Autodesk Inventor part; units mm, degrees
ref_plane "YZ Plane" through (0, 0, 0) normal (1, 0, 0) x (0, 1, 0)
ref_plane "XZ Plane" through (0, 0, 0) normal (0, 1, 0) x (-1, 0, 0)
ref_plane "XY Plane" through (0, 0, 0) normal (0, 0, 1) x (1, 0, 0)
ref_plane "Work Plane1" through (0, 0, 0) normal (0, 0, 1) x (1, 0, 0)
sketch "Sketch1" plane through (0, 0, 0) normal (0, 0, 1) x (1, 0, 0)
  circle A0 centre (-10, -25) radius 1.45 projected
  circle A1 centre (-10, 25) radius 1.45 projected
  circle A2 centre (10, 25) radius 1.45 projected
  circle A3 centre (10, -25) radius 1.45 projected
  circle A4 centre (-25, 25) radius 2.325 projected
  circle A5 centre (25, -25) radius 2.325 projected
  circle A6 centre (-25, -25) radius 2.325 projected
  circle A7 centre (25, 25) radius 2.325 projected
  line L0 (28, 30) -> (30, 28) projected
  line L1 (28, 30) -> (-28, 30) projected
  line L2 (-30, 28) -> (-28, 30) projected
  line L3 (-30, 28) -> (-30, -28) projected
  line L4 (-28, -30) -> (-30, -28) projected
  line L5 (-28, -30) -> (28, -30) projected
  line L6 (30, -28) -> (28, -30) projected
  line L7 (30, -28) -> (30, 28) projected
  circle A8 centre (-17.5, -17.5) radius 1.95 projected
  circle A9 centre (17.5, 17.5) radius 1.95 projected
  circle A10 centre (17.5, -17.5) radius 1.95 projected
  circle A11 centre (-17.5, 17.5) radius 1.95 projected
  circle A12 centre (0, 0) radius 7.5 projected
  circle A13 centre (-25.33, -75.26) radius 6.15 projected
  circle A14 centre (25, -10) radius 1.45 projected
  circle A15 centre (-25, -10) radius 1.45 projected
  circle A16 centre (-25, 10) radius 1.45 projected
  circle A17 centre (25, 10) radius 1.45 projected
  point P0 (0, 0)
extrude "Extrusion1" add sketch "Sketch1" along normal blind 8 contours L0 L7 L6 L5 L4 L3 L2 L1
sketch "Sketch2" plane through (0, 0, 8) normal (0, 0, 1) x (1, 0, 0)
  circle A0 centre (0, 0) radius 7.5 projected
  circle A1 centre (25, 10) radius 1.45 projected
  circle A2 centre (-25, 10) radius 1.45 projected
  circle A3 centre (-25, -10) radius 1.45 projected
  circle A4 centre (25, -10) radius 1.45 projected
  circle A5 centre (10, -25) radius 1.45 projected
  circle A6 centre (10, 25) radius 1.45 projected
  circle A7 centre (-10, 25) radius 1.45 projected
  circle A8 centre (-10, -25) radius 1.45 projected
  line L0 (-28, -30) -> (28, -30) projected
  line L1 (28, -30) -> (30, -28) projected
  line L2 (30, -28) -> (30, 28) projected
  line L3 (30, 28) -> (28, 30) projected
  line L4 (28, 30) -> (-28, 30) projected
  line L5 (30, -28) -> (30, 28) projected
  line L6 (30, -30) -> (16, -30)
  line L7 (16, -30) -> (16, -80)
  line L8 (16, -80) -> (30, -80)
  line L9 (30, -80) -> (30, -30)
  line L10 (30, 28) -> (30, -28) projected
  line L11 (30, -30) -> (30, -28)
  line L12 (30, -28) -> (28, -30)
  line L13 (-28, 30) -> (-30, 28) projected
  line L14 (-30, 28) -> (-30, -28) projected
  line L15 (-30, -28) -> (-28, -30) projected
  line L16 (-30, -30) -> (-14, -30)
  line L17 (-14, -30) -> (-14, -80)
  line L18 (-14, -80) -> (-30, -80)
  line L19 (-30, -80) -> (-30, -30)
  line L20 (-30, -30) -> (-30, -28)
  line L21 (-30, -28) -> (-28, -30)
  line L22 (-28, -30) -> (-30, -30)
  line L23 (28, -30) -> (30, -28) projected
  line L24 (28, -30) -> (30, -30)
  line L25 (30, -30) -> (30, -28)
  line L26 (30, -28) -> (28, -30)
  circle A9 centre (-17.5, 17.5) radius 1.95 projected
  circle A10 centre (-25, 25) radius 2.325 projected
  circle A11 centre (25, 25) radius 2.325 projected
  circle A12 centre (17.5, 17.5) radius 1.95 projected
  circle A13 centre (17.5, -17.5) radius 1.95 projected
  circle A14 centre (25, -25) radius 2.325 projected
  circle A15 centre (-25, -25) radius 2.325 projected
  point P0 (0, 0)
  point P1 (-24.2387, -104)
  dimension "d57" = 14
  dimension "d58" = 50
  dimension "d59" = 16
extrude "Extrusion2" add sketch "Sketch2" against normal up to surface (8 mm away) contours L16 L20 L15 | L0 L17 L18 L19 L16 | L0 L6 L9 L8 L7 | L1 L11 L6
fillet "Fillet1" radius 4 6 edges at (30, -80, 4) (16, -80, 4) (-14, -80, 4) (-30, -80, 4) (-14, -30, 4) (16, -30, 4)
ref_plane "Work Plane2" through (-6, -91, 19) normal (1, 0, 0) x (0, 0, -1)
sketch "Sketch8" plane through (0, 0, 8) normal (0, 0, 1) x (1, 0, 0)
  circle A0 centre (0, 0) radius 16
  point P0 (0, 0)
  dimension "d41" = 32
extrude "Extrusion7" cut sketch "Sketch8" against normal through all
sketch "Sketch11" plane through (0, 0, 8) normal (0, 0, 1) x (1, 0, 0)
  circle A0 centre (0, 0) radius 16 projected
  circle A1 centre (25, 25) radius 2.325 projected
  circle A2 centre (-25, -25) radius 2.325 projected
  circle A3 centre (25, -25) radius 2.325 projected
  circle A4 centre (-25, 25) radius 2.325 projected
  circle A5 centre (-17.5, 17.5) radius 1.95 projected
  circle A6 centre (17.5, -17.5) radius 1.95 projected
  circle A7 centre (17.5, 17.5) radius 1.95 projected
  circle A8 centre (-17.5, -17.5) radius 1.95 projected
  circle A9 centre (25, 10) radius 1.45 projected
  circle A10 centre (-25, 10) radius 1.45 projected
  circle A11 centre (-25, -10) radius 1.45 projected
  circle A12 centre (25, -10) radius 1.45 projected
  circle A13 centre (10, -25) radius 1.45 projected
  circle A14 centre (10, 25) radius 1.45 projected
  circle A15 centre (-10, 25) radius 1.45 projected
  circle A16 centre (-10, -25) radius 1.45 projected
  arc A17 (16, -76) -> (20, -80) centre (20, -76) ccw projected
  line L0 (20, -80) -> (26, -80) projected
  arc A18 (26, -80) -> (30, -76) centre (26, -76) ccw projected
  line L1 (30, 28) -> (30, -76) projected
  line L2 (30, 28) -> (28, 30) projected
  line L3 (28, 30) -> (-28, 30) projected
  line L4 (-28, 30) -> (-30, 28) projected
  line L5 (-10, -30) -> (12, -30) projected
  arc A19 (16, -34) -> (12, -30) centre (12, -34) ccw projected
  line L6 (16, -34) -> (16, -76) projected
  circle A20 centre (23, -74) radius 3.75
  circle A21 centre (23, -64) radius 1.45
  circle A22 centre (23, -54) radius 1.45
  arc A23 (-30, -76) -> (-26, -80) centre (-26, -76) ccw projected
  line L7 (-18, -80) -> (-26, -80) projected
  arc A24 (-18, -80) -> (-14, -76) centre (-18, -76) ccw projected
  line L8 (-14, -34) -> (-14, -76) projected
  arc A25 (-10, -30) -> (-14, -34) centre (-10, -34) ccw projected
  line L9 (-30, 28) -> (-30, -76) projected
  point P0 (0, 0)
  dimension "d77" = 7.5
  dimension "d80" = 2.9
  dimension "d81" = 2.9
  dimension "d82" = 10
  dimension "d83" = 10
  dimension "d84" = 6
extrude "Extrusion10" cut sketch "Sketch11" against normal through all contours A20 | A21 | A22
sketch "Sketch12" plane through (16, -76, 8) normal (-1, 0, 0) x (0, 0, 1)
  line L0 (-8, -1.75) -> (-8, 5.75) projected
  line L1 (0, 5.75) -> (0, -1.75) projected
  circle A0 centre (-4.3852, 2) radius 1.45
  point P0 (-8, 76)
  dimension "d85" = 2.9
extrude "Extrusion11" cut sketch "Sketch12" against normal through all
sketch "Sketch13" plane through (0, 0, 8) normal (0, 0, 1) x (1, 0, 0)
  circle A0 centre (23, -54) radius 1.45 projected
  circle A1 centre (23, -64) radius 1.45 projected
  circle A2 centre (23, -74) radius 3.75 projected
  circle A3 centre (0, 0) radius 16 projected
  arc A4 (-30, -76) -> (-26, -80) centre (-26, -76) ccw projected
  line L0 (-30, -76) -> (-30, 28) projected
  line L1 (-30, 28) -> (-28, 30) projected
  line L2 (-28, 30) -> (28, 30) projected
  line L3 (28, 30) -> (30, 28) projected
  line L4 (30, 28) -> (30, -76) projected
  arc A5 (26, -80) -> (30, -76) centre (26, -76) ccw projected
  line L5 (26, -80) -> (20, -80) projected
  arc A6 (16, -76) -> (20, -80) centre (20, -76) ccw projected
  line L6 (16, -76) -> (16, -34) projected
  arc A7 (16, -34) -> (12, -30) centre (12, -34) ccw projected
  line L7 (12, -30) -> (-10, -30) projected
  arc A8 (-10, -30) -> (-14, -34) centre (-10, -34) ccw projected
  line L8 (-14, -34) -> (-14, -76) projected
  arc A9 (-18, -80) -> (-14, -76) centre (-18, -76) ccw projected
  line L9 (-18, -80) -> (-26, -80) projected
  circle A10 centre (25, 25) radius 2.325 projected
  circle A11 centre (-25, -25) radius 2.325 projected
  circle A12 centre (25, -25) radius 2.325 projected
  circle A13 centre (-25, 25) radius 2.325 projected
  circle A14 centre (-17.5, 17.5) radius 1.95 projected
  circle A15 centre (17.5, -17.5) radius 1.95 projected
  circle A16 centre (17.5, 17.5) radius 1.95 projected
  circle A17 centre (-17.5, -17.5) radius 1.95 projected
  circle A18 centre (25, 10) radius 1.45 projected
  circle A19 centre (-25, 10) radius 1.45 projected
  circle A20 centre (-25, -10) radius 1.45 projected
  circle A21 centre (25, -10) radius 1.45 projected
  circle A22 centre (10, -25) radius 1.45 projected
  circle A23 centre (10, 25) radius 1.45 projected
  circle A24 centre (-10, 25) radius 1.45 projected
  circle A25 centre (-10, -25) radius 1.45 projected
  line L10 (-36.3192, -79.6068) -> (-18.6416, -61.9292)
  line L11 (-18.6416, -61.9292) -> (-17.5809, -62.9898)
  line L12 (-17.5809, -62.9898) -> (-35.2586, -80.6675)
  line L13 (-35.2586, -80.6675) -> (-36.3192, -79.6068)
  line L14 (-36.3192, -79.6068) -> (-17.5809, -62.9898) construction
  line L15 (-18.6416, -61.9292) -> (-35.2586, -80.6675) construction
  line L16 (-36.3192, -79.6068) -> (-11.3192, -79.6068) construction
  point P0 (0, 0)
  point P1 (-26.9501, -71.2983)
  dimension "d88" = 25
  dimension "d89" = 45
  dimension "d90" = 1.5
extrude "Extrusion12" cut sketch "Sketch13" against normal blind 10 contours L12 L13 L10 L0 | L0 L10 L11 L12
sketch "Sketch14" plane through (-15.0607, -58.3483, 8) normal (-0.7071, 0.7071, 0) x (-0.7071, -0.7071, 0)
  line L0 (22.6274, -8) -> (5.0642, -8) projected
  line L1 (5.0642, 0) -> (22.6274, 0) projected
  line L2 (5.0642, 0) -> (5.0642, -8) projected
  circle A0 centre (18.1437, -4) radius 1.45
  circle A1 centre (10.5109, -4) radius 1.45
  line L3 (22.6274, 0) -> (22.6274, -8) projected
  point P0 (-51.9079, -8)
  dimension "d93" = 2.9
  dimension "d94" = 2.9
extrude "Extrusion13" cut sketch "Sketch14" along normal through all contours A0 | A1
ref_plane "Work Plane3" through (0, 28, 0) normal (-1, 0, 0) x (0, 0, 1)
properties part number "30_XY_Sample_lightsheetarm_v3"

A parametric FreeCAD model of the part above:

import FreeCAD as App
import Part
import Sketcher
Q = App.Units.Quantity


def edges_at(feature, points):
    """Names of the edges that pass closest to the given points."""
    edges = feature.Shape.Edges
    near = lambda p: min(range(len(edges)), key=lambda i: edges[i].distToShape(Part.Vertex(*p))[0])
    return sorted({f"Edge{near(p) + 1}" for p in points})

doc = App.newDocument("Part")
body = doc.addObject("PartDesign::Body", "Body")

sketch1 = body.newObject("Sketcher::SketchObject", "Sketch")
sketch1.AttachmentSupport = (doc.getObject("XY_Plane"), [""])
sketch1.MapMode = "FlatFace"
sketch1.addGeometry([
    Part.LineSegment(App.Vector(30, 28, 0), App.Vector(28, 30, 0)),
    Part.LineSegment(App.Vector(28, 30, 0), App.Vector(-28, 30, 0)),
    Part.LineSegment(App.Vector(-28, 30, 0), App.Vector(-30, 28, 0)),
    Part.LineSegment(App.Vector(-30, 28, 0), App.Vector(-30, -28, 0)),
    Part.LineSegment(App.Vector(-30, -28, 0), App.Vector(-28, -30, 0)),
    Part.LineSegment(App.Vector(-28, -30, 0), App.Vector(28, -30, 0)),
    Part.LineSegment(App.Vector(28, -30, 0), App.Vector(30, -28, 0)),
    Part.LineSegment(App.Vector(30, -28, 0), App.Vector(30, 28, 0)),
    Part.Circle(App.Vector(-25, -25, 0), App.Vector(0, 0, 1), 2.3),
    Part.Circle(App.Vector(-17.5, -17.5, 0), App.Vector(0, 0, 1), 1.9),
    Part.Circle(App.Vector(-25, -10, 0), App.Vector(0, 0, 1), 1.4),
    Part.Circle(App.Vector(-10, -25, 0), App.Vector(0, 0, 1), 1.4),
    Part.Circle(App.Vector(-25, 10, 0), App.Vector(0, 0, 1), 1.4),
    Part.Circle(App.Vector(-25, 25, 0), App.Vector(0, 0, 1), 2.3),
    Part.Circle(App.Vector(-17.5, 17.5, 0), App.Vector(0, 0, 1), 1.9),
    Part.Circle(App.Vector(-10, 25, 0), App.Vector(0, 0, 1), 1.4),
    Part.Circle(App.Vector(10, -25, 0), App.Vector(0, 0, 1), 1.4),
    Part.Circle(App.Vector(0, 0, 0), App.Vector(0, 0, 1), 7.5),
    Part.Circle(App.Vector(17.5, -17.5, 0), App.Vector(0, 0, 1), 1.9),
    Part.Circle(App.Vector(25, -25, 0), App.Vector(0, 0, 1), 2.3),
    Part.Circle(App.Vector(25, -10, 0), App.Vector(0, 0, 1), 1.4),
    Part.Circle(App.Vector(10, 25, 0), App.Vector(0, 0, 1), 1.4),
    Part.Circle(App.Vector(25, 10, 0), App.Vector(0, 0, 1), 1.4),
    Part.Circle(App.Vector(17.5, 17.5, 0), App.Vector(0, 0, 1), 1.9),
    Part.Circle(App.Vector(25, 25, 0), App.Vector(0, 0, 1), 2.3),
], False)
sketch1.addConstraint([
    Sketcher.Constraint("Coincident", 0, 2, 1, 1),
    Sketcher.Constraint("Coincident", 1, 2, 2, 1),
    Sketcher.Constraint("Coincident", 2, 2, 3, 1),
    Sketcher.Constraint("Coincident", 3, 2, 4, 1),
    Sketcher.Constraint("Coincident", 4, 2, 5, 1),
    Sketcher.Constraint("Coincident", 5, 2, 6, 1),
    Sketcher.Constraint("Coincident", 6, 2, 7, 1),
    Sketcher.Constraint("Coincident", 7, 2, 0, 1),
    Sketcher.Constraint("Horizontal", 1),
    Sketcher.Constraint("Vertical", 3),
    Sketcher.Constraint("Horizontal", 5),
    Sketcher.Constraint("Vertical", 7),
    Sketcher.Constraint("Coincident", 17, 3, -1, 1),
    Sketcher.Constraint("Equal", 10, 11),
    Sketcher.Constraint("Equal", 11, 12),
    Sketcher.Constraint("Equal", 8, 13),
    Sketcher.Constraint("Equal", 9, 14),
    Sketcher.Constraint("Equal", 12, 15),
    Sketcher.Constraint("Equal", 15, 16),
    Sketcher.Constraint("Equal", 14, 18),
    Sketcher.Constraint("Equal", 13, 19),
    Sketcher.Constraint("Equal", 16, 20),
    Sketcher.Constraint("Equal", 20, 21),
    Sketcher.Constraint("Equal", 21, 22),
    Sketcher.Constraint("Equal", 18, 23),
    Sketcher.Constraint("Equal", 19, 24),
    Sketcher.Constraint("Symmetric", 15, 3, 16, 3, -1, 1),
    Sketcher.Constraint("Symmetric", 14, 3, 18, 3, -1, 1),
    Sketcher.Constraint("Symmetric", 13, 3, 19, 3, -1, 1),
    Sketcher.Constraint("Symmetric", 12, 3, 20, 3, -1, 1),
    Sketcher.Constraint("Symmetric", 11, 3, 21, 3, -1, 1),
    Sketcher.Constraint("Symmetric", 10, 3, 22, 3, -1, 1),
    Sketcher.Constraint("Symmetric", 9, 3, 23, 3, -1, 1),
    Sketcher.Constraint("Symmetric", 8, 3, 24, 3, -1, 1),
    Sketcher.Constraint("Symmetric", 0, 2, 4, 2, -1, 1),
    Sketcher.Constraint("Symmetric", 2, 2, 6, 2, -1, 1),
    Sketcher.Constraint("Symmetric", 11, 3, 16, 3, -2),
    Sketcher.Constraint("Symmetric", 9, 3, 18, 3, -2),
    Sketcher.Constraint("Symmetric", 8, 3, 19, 3, -2),
    Sketcher.Constraint("Symmetric", 10, 3, 20, 3, -2),
    Sketcher.Constraint("Perpendicular", 0, 2),
    Sketcher.Constraint("Perpendicular", 2, 4),
    Sketcher.Constraint("Perpendicular", 4, 6),
    Sketcher.Constraint("Horizontal", 8, 3, 11, 3),
    Sketcher.Constraint("Horizontal", 3, 2, 6, 2),
    Sketcher.Constraint("Vertical", 8, 3, 10, 3),
    Sketcher.Constraint("Vertical", 1, 2, 4, 2),
    Sketcher.Constraint("Equal", 5, 3),
    Sketcher.Constraint("Diameter", 17, 15.0),
    Sketcher.Constraint("Diameter", 9, 3.9),
    Sketcher.Constraint("Diameter", 10, 2.9),
    Sketcher.Constraint("Diameter", 8, 4.65),
    Sketcher.Constraint("DistanceX", 1, 2, 1, 1, 56.0),
    Sketcher.Constraint("DistanceX", 8, 3, -1, 1, 25.0),
    Sketcher.Constraint("DistanceY", 8, 3, -1, 1, 25.0),
    Sketcher.Constraint("DistanceY", 10, 3, -1, 1, 10.0),
    Sketcher.Constraint("DistanceX", 11, 3, -1, 1, 10.0),
    Sketcher.Constraint("DistanceY", -1, 1, 0, 2, 30.0),
    Sketcher.Constraint("DistanceY", 9, 3, 14, 3, 35.0),
    Sketcher.Constraint("DistanceX", 9, 3, 18, 3, 35.0),
])
pad1 = body.newObject("PartDesign::Pad", "Pad")
pad1.Profile = sketch1
pad1.Length = 8

sketch2 = body.newObject("Sketcher::SketchObject", "Sketch001")
sketch2.AttachmentSupport = (doc.getObject("XY_Plane"), [""])
sketch2.MapMode = "FlatFace"
sketch2.AttachmentOffset = App.Placement(App.Vector(0, 0, 8), App.Rotation())
sketch2.addGeometry([
    Part.LineSegment(App.Vector(-30, -28, 0), App.Vector(-30, -80, 0)),
    Part.LineSegment(App.Vector(-30, -80, 0), App.Vector(-14, -80, 0)),
    Part.LineSegment(App.Vector(-14, -80, 0), App.Vector(-14, -30, 0)),
    Part.LineSegment(App.Vector(-14, -30, 0), App.Vector(-28, -30, 0)),
    Part.LineSegment(App.Vector(-28, -30, 0), App.Vector(-30, -28, 0)),
    Part.LineSegment(App.Vector(28, -30, 0), App.Vector(16, -30, 0)),
    Part.LineSegment(App.Vector(16, -30, 0), App.Vector(16, -80, 0)),
    Part.LineSegment(App.Vector(16, -80, 0), App.Vector(30, -80, 0)),
    Part.LineSegment(App.Vector(30, -80, 0), App.Vector(30, -28, 0)),
    Part.LineSegment(App.Vector(30, -28, 0), App.Vector(28, -30, 0)),
], False)
sketch2.addConstraint([
    Sketcher.Constraint("Coincident", 0, 2, 1, 1),
    Sketcher.Constraint("Coincident", 1, 2, 2, 1),
    Sketcher.Constraint("Coincident", 2, 2, 3, 1),
    Sketcher.Constraint("Coincident", 3, 2, 4, 1),
    Sketcher.Constraint("Coincident", 4, 2, 0, 1),
    Sketcher.Constraint("Coincident", 5, 2, 6, 1),
    Sketcher.Constraint("Coincident", 6, 2, 7, 1),
    Sketcher.Constraint("Coincident", 7, 2, 8, 1),
    Sketcher.Constraint("Coincident", 8, 2, 9, 1),
    Sketcher.Constraint("Coincident", 9, 2, 5, 1),
    Sketcher.Constraint("Vertical", 0),
    Sketcher.Constraint("Horizontal", 1),
    Sketcher.Constraint("Vertical", 2),
    Sketcher.Constraint("Horizontal", 3),
    Sketcher.Constraint("Horizontal", 5),
    Sketcher.Constraint("Vertical", 6),
    Sketcher.Constraint("Horizontal", 7),
    Sketcher.Constraint("Vertical", 8),
    Sketcher.Constraint("Symmetric", 0, 2, 7, 2, -2),
    Sketcher.Constraint("Symmetric", 3, 2, 9, 2, -2),
    Sketcher.Constraint("Perpendicular", 4, 9),
    Sketcher.Constraint("Horizontal", 4, 2, 8, 2),
    Sketcher.Constraint("Equal", 3, 7),
    Sketcher.Constraint("DistanceX", 1, 1, 1, 2, 16.0),
    Sketcher.Constraint("DistanceX", 3, 2, 3, 1, 14.0),
    Sketcher.Constraint("DistanceY", 2, 1, 2, 2, 50.0),
    Sketcher.Constraint("DistanceX", 1, 2, -1, 1, 14.0),
    Sketcher.Constraint("DistanceY", 0, 2, -1, 1, 80.0),
])
pad2 = body.newObject("PartDesign::Pad", "Pad001")
pad2.Profile = sketch2
pad2.Length = 8
pad2.Reversed = True
doc.recompute()

fillet = body.newObject("PartDesign::Fillet", "Fillet")
fillet.Base = (pad2, edges_at(pad2, [
    (30, -80, 4),
    (16, -80, 4),
    (-14, -80, 4),
    (-30, -80, 4),
    (-14, -30, 4),
    (16, -30, 4),
]))
fillet.Radius = 4

sketch3 = body.newObject("Sketcher::SketchObject", "Sketch002")
sketch3.AttachmentSupport = (doc.getObject("XY_Plane"), [""])
sketch3.MapMode = "FlatFace"
sketch3.AttachmentOffset = App.Placement(App.Vector(0, 0, 8), App.Rotation())
sketch3.addGeometry(Part.Circle(App.Vector(0, 0, 0), App.Vector(0, 0, 1), 16), False)
sketch3.addConstraint([
    Sketcher.Constraint("Coincident", 0, 3, -1, 1),
    Sketcher.Constraint("Diameter", 0, 32.0),
])
pocket1 = body.newObject("PartDesign::Pocket", "Pocket")
pocket1.Profile = sketch3
pocket1.Type = "ThroughAll"

sketch4 = body.newObject("Sketcher::SketchObject", "Sketch003")
sketch4.AttachmentSupport = (doc.getObject("XY_Plane"), [""])
sketch4.MapMode = "FlatFace"
sketch4.AttachmentOffset = App.Placement(App.Vector(0, 0, 8), App.Rotation())
sketch4.addGeometry([
    Part.Circle(App.Vector(23, -74, 0), App.Vector(0, 0, 1), 3.8),
    Part.Circle(App.Vector(23, -64, 0), App.Vector(0, 0, 1), 1.4),
    Part.Circle(App.Vector(23, -54, 0), App.Vector(0, 0, 1), 1.4),
], False)
sketch4.addConstraint([
    Sketcher.Constraint("Equal", 1, 2),
    Sketcher.Constraint("Vertical", 0, 3, 1, 3),
    Sketcher.Constraint("Vertical", 1, 3, 2, 3),
    Sketcher.Constraint("Diameter", 0, 7.5),
    Sketcher.Constraint("Diameter", 1, 2.9),
    Sketcher.Constraint("DistanceY", 0, 3, 1, 3, 10.0),
    Sketcher.Constraint("DistanceY", 1, 3, 2, 3, 10.0),
    Sketcher.Constraint("DistanceX", -1, 1, 0, 3, 23.0),
    Sketcher.Constraint("DistanceY", 0, 3, -1, 1, 74.0),
])
pocket2 = body.newObject("PartDesign::Pocket", "Pocket001")
pocket2.Profile = sketch4
pocket2.Type = "ThroughAll"

sketch5 = body.newObject("Sketcher::SketchObject", "Sketch004")
sketch5.AttachmentSupport = (doc.getObject("YZ_Plane"), [""])
sketch5.MapMode = "FlatFace"
sketch5.AttachmentOffset = App.Placement(App.Vector(0, 0, 16), App.Rotation())
sketch5.addGeometry(Part.Circle(App.Vector(-74, 3.6, 0), App.Vector(0, 0, 1), 1.4), False)
sketch5.addConstraint([
    Sketcher.Constraint("Diameter", 0, 2.9),
    Sketcher.Constraint("DistanceX", 0, 3, -1, 1, 74.0),
    Sketcher.Constraint("DistanceY", -1, 1, 0, 3, 3.6148),
])
pocket3 = body.newObject("PartDesign::Pocket", "Pocket002")
pocket3.Profile = sketch5
pocket3.Type = "ThroughAll"
pocket3.Reversed = True

sketch6 = body.newObject("Sketcher::SketchObject", "Sketch005")
sketch6.AttachmentSupport = (doc.getObject("XY_Plane"), [""])
sketch6.MapMode = "FlatFace"
sketch6.AttachmentOffset = App.Placement(App.Vector(0, 0, 8), App.Rotation())
sketch6.addGeometry([
    Part.LineSegment(App.Vector(-35.3, -80.7, 0), App.Vector(-17.6, -63, 0)),
    Part.LineSegment(App.Vector(-17.6, -63, 0), App.Vector(-18.6, -61.9, 0)),
    Part.LineSegment(App.Vector(-18.6, -61.9, 0), App.Vector(-36.3, -79.6, 0)),
    Part.LineSegment(App.Vector(-36.3, -79.6, 0), App.Vector(-35.3, -80.7, 0)),
], False)
sketch6.addConstraint([
    Sketcher.Constraint("Coincident", 0, 2, 1, 1),
    Sketcher.Constraint("Coincident", 1, 2, 2, 1),
    Sketcher.Constraint("Coincident", 2, 2, 3, 1),
    Sketcher.Constraint("Coincident", 3, 2, 0, 1),
    Sketcher.Constraint("Perpendicular", 0, 1),
    Sketcher.Constraint("Perpendicular", 1, 2),
    Sketcher.Constraint("Perpendicular", 2, 3),
    Sketcher.Constraint("Angle", 0, Q("45 deg")),
    Sketcher.Constraint("Distance", 0, 25.0),
    Sketcher.Constraint("Distance", 1, 1.5),
    Sketcher.Constraint("DistanceX", 0, 2, -1, 1, 17.581),
    Sketcher.Constraint("DistanceY", 0, 2, -1, 1, 62.9898),
])
pocket4 = body.newObject("PartDesign::Pocket", "Pocket003")
pocket4.Profile = sketch6
pocket4.Length = 10

sketch7 = body.newObject("Sketcher::SketchObject", "Sketch006")
sketch7.Placement = App.Placement(App.Vector(-15.0607, -58.3483, 8), App.Rotation(App.Vector(-0.707106781, -0.707106781, 0), App.Vector(0, 0, 0.999999999), App.Vector(-0.707106781, 0.707106781, 0), "ZXY"))
sketch7.addGeometry([
    Part.Circle(App.Vector(18.1, -4, 0), App.Vector(0, 0, 1), 1.4),
    Part.Circle(App.Vector(10.5, -4, 0), App.Vector(0, 0, 1), 1.4),
], False)
sketch7.addConstraint([
    Sketcher.Constraint("Equal", 0, 1),
    Sketcher.Constraint("Horizontal", 0, 3, 1, 3),
    Sketcher.Constraint("Diameter", 0, 2.9),
    Sketcher.Constraint("DistanceY", 0, 3, -1, 1, 4.0),
    Sketcher.Constraint("DistanceX", -1, 1, 1, 3, 10.511),
    Sketcher.Constraint("DistanceX", -1, 1, 0, 3, 18.1437),
])
pocket5 = body.newObject("PartDesign::Pocket", "Pocket004")
pocket5.Profile = sketch7
pocket5.Type = "ThroughAll"
pocket5.Reversed = True

doc.recompute()
